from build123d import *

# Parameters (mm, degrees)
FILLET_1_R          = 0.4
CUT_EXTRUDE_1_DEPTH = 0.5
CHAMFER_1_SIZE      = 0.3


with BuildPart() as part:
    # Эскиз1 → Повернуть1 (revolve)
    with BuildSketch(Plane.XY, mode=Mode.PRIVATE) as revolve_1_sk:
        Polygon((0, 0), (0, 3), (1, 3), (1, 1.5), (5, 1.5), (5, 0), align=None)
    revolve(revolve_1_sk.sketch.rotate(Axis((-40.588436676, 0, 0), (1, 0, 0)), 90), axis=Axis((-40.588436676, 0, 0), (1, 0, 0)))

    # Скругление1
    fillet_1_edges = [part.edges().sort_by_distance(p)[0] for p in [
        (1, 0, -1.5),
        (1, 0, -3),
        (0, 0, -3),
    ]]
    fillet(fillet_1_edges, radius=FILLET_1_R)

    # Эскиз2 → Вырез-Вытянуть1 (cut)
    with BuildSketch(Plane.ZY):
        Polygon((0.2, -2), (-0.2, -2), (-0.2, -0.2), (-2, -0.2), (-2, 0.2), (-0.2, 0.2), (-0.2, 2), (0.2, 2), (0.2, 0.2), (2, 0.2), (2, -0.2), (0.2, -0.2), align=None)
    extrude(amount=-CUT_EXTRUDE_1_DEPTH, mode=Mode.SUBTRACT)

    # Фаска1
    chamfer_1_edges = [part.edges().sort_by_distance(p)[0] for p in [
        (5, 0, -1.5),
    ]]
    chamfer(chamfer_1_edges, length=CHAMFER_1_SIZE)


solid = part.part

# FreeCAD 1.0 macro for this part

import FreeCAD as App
import Part
import Sketcher
from FreeCAD import Vector
Q = App.Units.Quantity


def edges_at(feature, points):
    """Names of the edges that pass closest to the given points."""
    edges = feature.Shape.Edges
    near = lambda p: min(range(len(edges)), key=lambda i: edges[i].distToShape(Part.Vertex(*p))[0])
    return sorted({f"Edge{near(p) + 1}" for p in points})

doc = App.newDocument("Part")
params = doc.addObject("Spreadsheet::Sheet", "Params")
for row, (alias, value) in enumerate([
    ("sketch1_width", "5 mm"),
    ("sketch1_width2", "4 mm"),
    ("sketch1_height", "3 mm"),
    ("revolution_angle", "360 deg"),
    ("fillet_radius", "0.4 mm"),
    ("sketch2_width", "1.8 mm"),
    ("sketch2_width2", "0.4 mm"),
    ("pocket1_length", "0.5 mm"),
    ("chamfer_size", "0.3 mm"),
], start=1):
    params.set(f"A{row}", alias)
    params.set(f"B{row}", "=" + value)
    params.setAlias(f"B{row}", alias)

body = doc.addObject("PartDesign::Body", "Body")

# Sketch on XY plane
sketch1 = body.newObject("Sketcher::SketchObject", "Sketch")
sketch1.AttachmentSupport = (doc.getObject("XY_Plane"), [""])
sketch1.MapMode = "FlatFace"
sketch1.addGeometry([
    Part.LineSegment(Vector(0, 3, 0), Vector(0, 0, 0)),  # 0
    Part.LineSegment(Vector(0, 0, 0), Vector(5, 0, 0)),  # 1
    Part.LineSegment(Vector(5, 0, 0), Vector(5, 1.5, 0)),  # 2
    Part.LineSegment(Vector(5, 1.5, 0), Vector(1, 1.5, 0)),  # 3
    Part.LineSegment(Vector(1, 1.5, 0), Vector(1, 3, 0)),  # 4
    Part.LineSegment(Vector(1, 3, 0), Vector(0, 3, 0)),  # 5
], False)
sketch1.addConstraint([
    Sketcher.Constraint("Coincident", 0, 2, 1, 1),
    Sketcher.Constraint("Coincident", 1, 2, 2, 1),
    Sketcher.Constraint("Coincident", 2, 2, 3, 1),
    Sketcher.Constraint("Coincident", 3, 2, 4, 1),
    Sketcher.Constraint("Coincident", 4, 2, 5, 1),
    Sketcher.Constraint("Coincident", 5, 2, 0, 1),
    Sketcher.Constraint("Vertical", 0),
    Sketcher.Constraint("Horizontal", 1),
    Sketcher.Constraint("Vertical", 2),
    Sketcher.Constraint("Horizontal", 3),
    Sketcher.Constraint("Vertical", 4),
    Sketcher.Constraint("Horizontal", 5),
    Sketcher.Constraint("Coincident", 0, 2, -1, 1),
    Sketcher.Constraint("Equal", 2, 4),
    Sketcher.Constraint("DistanceX", 1, 1, 1, 2, Q("5 mm")),
    Sketcher.Constraint("DistanceX", 3, 2, 3, 1, Q("4 mm")),
    Sketcher.Constraint("DistanceY", 0, 2, 0, 1, Q("3 mm")),
])
sketch1.setExpression("Constraints[14]", "Params.sketch1_width")
sketch1.setExpression("Constraints[15]", "Params.sketch1_width2")
sketch1.setExpression("Constraints[16]", "Params.sketch1_height")
revolution = body.newObject("PartDesign::Revolution", "Revolution")
revolution.Profile = sketch1
revolution.ReferenceAxis = (sketch1, ["H_Axis"])
revolution.setExpression("Angle", "Params.revolution_angle")
doc.recompute()

fillet = body.newObject("PartDesign::Fillet", "Fillet")
fillet.Base = (revolution, edges_at(revolution, [(1, 0, -1.5), (1, 0, -3), (0, 0, -3)]))
fillet.setExpression("Radius", "Params.fillet_radius")

# Sketch on YZ plane
sketch2 = body.newObject("Sketcher::SketchObject", "Sketch001")
sketch2.AttachmentSupport = (doc.getObject("YZ_Plane"), [""])
sketch2.MapMode = "FlatFace"
sketch2.addGeometry([
    Part.LineSegment(Vector(-2, -0.2, 0), Vector(-2, 0.2, 0)),  # 0
    Part.LineSegment(Vector(-2, 0.2, 0), Vector(-0.2, 0.2, 0)),  # 1
    Part.LineSegment(Vector(-0.2, 0.2, 0), Vector(-0.2, 2, 0)),  # 2
    Part.LineSegment(Vector(-0.2, 2, 0), Vector(0.2, 2, 0)),  # 3
    Part.LineSegment(Vector(0.2, 2, 0), Vector(0.2, 0.2, 0)),  # 4
    Part.LineSegment(Vector(0.2, 0.2, 0), Vector(2, 0.2, 0)),  # 5
    Part.LineSegment(Vector(2, 0.2, 0), Vector(2, -0.2, 0)),  # 6
    Part.LineSegment(Vector(2, -0.2, 0), Vector(0.2, -0.2, 0)),  # 7
    Part.LineSegment(Vector(0.2, -0.2, 0), Vector(0.2, -2, 0)),  # 8
    Part.LineSegment(Vector(0.2, -2, 0), Vector(-0.2, -2, 0)),  # 9
    Part.LineSegment(Vector(-0.2, -2, 0), Vector(-0.2, -0.2, 0)),  # 10
    Part.LineSegment(Vector(-0.2, -0.2, 0), Vector(-2, -0.2, 0)),  # 11
], False)
sketch2.addConstraint([
    Sketcher.Constraint("Coincident", 0, 2, 1, 1),
    Sketcher.Constraint("Coincident", 1, 2, 2, 1),
    Sketcher.Constraint("Coincident", 2, 2, 3, 1),
    Sketcher.Constraint("Coincident", 3, 2, 4, 1),
    Sketcher.Constraint("Coincident", 4, 2, 5, 1),
    Sketcher.Constraint("Coincident", 5, 2, 6, 1),
    Sketcher.Constraint("Coincident", 6, 2, 7, 1),
    Sketcher.Constraint("Coincident", 7, 2, 8, 1),
    Sketcher.Constraint("Coincident", 8, 2, 9, 1),
    Sketcher.Constraint("Coincident", 9, 2, 10, 1),
    Sketcher.Constraint("Coincident", 10, 2, 11, 1),
    Sketcher.Constraint("Coincident", 11, 2, 0, 1),
    Sketcher.Constraint("Vertical", 0),
    Sketcher.Constraint("Horizontal", 1),
    Sketcher.Constraint("Vertical", 2),
    Sketcher.Constraint("Horizontal", 3),
    Sketcher.Constraint("Vertical", 4),
    Sketcher.Constraint("Horizontal", 5),
    Sketcher.Constraint("Vertical", 6),
    Sketcher.Constraint("Horizontal", 7),
    Sketcher.Constraint("Vertical", 8),
    Sketcher.Constraint("Horizontal", 9),
    Sketcher.Constraint("Vertical", 10),
    Sketcher.Constraint("Horizontal", 11),
    Sketcher.Constraint("Symmetric", 0, 2, 6, 2, -1, 1),
    Sketcher.Constraint("Symmetric", 2, 2, 8, 2, -1, 1),
    Sketcher.Constraint("Symmetric", 4, 2, 10, 2, -1, 1),
    Sketcher.Constraint("Symmetric", 1, 2, 4, 2, -2),
    Sketcher.Constraint("Equal", 9, 0),
    Sketcher.Constraint("Equal", 11, 2),
    Sketcher.Constraint("DistanceX", 1, 1, 1, 2, Q("1.8 mm")),
    Sketcher.Constraint("DistanceX", 3, 1, 3, 2, Q("0.4 mm")),
])
sketch2.setExpression("Constraints[30]", "Params.sketch2_width")
sketch2.setExpression("Constraints[31]", "Params.sketch2_width2")
pocket1 = body.newObject("PartDesign::Pocket", "Pocket")
pocket1.Profile = sketch2
pocket1.setExpression("Length", "Params.pocket1_length")
pocket1.Reversed = True
doc.recompute()

chamfer = body.newObject("PartDesign::Chamfer", "Chamfer")
chamfer.Base = (pocket1, edges_at(pocket1, [(5, 0, -1.5)]))
chamfer.setExpression("Size", "Params.chamfer_size")

doc.recompute()
